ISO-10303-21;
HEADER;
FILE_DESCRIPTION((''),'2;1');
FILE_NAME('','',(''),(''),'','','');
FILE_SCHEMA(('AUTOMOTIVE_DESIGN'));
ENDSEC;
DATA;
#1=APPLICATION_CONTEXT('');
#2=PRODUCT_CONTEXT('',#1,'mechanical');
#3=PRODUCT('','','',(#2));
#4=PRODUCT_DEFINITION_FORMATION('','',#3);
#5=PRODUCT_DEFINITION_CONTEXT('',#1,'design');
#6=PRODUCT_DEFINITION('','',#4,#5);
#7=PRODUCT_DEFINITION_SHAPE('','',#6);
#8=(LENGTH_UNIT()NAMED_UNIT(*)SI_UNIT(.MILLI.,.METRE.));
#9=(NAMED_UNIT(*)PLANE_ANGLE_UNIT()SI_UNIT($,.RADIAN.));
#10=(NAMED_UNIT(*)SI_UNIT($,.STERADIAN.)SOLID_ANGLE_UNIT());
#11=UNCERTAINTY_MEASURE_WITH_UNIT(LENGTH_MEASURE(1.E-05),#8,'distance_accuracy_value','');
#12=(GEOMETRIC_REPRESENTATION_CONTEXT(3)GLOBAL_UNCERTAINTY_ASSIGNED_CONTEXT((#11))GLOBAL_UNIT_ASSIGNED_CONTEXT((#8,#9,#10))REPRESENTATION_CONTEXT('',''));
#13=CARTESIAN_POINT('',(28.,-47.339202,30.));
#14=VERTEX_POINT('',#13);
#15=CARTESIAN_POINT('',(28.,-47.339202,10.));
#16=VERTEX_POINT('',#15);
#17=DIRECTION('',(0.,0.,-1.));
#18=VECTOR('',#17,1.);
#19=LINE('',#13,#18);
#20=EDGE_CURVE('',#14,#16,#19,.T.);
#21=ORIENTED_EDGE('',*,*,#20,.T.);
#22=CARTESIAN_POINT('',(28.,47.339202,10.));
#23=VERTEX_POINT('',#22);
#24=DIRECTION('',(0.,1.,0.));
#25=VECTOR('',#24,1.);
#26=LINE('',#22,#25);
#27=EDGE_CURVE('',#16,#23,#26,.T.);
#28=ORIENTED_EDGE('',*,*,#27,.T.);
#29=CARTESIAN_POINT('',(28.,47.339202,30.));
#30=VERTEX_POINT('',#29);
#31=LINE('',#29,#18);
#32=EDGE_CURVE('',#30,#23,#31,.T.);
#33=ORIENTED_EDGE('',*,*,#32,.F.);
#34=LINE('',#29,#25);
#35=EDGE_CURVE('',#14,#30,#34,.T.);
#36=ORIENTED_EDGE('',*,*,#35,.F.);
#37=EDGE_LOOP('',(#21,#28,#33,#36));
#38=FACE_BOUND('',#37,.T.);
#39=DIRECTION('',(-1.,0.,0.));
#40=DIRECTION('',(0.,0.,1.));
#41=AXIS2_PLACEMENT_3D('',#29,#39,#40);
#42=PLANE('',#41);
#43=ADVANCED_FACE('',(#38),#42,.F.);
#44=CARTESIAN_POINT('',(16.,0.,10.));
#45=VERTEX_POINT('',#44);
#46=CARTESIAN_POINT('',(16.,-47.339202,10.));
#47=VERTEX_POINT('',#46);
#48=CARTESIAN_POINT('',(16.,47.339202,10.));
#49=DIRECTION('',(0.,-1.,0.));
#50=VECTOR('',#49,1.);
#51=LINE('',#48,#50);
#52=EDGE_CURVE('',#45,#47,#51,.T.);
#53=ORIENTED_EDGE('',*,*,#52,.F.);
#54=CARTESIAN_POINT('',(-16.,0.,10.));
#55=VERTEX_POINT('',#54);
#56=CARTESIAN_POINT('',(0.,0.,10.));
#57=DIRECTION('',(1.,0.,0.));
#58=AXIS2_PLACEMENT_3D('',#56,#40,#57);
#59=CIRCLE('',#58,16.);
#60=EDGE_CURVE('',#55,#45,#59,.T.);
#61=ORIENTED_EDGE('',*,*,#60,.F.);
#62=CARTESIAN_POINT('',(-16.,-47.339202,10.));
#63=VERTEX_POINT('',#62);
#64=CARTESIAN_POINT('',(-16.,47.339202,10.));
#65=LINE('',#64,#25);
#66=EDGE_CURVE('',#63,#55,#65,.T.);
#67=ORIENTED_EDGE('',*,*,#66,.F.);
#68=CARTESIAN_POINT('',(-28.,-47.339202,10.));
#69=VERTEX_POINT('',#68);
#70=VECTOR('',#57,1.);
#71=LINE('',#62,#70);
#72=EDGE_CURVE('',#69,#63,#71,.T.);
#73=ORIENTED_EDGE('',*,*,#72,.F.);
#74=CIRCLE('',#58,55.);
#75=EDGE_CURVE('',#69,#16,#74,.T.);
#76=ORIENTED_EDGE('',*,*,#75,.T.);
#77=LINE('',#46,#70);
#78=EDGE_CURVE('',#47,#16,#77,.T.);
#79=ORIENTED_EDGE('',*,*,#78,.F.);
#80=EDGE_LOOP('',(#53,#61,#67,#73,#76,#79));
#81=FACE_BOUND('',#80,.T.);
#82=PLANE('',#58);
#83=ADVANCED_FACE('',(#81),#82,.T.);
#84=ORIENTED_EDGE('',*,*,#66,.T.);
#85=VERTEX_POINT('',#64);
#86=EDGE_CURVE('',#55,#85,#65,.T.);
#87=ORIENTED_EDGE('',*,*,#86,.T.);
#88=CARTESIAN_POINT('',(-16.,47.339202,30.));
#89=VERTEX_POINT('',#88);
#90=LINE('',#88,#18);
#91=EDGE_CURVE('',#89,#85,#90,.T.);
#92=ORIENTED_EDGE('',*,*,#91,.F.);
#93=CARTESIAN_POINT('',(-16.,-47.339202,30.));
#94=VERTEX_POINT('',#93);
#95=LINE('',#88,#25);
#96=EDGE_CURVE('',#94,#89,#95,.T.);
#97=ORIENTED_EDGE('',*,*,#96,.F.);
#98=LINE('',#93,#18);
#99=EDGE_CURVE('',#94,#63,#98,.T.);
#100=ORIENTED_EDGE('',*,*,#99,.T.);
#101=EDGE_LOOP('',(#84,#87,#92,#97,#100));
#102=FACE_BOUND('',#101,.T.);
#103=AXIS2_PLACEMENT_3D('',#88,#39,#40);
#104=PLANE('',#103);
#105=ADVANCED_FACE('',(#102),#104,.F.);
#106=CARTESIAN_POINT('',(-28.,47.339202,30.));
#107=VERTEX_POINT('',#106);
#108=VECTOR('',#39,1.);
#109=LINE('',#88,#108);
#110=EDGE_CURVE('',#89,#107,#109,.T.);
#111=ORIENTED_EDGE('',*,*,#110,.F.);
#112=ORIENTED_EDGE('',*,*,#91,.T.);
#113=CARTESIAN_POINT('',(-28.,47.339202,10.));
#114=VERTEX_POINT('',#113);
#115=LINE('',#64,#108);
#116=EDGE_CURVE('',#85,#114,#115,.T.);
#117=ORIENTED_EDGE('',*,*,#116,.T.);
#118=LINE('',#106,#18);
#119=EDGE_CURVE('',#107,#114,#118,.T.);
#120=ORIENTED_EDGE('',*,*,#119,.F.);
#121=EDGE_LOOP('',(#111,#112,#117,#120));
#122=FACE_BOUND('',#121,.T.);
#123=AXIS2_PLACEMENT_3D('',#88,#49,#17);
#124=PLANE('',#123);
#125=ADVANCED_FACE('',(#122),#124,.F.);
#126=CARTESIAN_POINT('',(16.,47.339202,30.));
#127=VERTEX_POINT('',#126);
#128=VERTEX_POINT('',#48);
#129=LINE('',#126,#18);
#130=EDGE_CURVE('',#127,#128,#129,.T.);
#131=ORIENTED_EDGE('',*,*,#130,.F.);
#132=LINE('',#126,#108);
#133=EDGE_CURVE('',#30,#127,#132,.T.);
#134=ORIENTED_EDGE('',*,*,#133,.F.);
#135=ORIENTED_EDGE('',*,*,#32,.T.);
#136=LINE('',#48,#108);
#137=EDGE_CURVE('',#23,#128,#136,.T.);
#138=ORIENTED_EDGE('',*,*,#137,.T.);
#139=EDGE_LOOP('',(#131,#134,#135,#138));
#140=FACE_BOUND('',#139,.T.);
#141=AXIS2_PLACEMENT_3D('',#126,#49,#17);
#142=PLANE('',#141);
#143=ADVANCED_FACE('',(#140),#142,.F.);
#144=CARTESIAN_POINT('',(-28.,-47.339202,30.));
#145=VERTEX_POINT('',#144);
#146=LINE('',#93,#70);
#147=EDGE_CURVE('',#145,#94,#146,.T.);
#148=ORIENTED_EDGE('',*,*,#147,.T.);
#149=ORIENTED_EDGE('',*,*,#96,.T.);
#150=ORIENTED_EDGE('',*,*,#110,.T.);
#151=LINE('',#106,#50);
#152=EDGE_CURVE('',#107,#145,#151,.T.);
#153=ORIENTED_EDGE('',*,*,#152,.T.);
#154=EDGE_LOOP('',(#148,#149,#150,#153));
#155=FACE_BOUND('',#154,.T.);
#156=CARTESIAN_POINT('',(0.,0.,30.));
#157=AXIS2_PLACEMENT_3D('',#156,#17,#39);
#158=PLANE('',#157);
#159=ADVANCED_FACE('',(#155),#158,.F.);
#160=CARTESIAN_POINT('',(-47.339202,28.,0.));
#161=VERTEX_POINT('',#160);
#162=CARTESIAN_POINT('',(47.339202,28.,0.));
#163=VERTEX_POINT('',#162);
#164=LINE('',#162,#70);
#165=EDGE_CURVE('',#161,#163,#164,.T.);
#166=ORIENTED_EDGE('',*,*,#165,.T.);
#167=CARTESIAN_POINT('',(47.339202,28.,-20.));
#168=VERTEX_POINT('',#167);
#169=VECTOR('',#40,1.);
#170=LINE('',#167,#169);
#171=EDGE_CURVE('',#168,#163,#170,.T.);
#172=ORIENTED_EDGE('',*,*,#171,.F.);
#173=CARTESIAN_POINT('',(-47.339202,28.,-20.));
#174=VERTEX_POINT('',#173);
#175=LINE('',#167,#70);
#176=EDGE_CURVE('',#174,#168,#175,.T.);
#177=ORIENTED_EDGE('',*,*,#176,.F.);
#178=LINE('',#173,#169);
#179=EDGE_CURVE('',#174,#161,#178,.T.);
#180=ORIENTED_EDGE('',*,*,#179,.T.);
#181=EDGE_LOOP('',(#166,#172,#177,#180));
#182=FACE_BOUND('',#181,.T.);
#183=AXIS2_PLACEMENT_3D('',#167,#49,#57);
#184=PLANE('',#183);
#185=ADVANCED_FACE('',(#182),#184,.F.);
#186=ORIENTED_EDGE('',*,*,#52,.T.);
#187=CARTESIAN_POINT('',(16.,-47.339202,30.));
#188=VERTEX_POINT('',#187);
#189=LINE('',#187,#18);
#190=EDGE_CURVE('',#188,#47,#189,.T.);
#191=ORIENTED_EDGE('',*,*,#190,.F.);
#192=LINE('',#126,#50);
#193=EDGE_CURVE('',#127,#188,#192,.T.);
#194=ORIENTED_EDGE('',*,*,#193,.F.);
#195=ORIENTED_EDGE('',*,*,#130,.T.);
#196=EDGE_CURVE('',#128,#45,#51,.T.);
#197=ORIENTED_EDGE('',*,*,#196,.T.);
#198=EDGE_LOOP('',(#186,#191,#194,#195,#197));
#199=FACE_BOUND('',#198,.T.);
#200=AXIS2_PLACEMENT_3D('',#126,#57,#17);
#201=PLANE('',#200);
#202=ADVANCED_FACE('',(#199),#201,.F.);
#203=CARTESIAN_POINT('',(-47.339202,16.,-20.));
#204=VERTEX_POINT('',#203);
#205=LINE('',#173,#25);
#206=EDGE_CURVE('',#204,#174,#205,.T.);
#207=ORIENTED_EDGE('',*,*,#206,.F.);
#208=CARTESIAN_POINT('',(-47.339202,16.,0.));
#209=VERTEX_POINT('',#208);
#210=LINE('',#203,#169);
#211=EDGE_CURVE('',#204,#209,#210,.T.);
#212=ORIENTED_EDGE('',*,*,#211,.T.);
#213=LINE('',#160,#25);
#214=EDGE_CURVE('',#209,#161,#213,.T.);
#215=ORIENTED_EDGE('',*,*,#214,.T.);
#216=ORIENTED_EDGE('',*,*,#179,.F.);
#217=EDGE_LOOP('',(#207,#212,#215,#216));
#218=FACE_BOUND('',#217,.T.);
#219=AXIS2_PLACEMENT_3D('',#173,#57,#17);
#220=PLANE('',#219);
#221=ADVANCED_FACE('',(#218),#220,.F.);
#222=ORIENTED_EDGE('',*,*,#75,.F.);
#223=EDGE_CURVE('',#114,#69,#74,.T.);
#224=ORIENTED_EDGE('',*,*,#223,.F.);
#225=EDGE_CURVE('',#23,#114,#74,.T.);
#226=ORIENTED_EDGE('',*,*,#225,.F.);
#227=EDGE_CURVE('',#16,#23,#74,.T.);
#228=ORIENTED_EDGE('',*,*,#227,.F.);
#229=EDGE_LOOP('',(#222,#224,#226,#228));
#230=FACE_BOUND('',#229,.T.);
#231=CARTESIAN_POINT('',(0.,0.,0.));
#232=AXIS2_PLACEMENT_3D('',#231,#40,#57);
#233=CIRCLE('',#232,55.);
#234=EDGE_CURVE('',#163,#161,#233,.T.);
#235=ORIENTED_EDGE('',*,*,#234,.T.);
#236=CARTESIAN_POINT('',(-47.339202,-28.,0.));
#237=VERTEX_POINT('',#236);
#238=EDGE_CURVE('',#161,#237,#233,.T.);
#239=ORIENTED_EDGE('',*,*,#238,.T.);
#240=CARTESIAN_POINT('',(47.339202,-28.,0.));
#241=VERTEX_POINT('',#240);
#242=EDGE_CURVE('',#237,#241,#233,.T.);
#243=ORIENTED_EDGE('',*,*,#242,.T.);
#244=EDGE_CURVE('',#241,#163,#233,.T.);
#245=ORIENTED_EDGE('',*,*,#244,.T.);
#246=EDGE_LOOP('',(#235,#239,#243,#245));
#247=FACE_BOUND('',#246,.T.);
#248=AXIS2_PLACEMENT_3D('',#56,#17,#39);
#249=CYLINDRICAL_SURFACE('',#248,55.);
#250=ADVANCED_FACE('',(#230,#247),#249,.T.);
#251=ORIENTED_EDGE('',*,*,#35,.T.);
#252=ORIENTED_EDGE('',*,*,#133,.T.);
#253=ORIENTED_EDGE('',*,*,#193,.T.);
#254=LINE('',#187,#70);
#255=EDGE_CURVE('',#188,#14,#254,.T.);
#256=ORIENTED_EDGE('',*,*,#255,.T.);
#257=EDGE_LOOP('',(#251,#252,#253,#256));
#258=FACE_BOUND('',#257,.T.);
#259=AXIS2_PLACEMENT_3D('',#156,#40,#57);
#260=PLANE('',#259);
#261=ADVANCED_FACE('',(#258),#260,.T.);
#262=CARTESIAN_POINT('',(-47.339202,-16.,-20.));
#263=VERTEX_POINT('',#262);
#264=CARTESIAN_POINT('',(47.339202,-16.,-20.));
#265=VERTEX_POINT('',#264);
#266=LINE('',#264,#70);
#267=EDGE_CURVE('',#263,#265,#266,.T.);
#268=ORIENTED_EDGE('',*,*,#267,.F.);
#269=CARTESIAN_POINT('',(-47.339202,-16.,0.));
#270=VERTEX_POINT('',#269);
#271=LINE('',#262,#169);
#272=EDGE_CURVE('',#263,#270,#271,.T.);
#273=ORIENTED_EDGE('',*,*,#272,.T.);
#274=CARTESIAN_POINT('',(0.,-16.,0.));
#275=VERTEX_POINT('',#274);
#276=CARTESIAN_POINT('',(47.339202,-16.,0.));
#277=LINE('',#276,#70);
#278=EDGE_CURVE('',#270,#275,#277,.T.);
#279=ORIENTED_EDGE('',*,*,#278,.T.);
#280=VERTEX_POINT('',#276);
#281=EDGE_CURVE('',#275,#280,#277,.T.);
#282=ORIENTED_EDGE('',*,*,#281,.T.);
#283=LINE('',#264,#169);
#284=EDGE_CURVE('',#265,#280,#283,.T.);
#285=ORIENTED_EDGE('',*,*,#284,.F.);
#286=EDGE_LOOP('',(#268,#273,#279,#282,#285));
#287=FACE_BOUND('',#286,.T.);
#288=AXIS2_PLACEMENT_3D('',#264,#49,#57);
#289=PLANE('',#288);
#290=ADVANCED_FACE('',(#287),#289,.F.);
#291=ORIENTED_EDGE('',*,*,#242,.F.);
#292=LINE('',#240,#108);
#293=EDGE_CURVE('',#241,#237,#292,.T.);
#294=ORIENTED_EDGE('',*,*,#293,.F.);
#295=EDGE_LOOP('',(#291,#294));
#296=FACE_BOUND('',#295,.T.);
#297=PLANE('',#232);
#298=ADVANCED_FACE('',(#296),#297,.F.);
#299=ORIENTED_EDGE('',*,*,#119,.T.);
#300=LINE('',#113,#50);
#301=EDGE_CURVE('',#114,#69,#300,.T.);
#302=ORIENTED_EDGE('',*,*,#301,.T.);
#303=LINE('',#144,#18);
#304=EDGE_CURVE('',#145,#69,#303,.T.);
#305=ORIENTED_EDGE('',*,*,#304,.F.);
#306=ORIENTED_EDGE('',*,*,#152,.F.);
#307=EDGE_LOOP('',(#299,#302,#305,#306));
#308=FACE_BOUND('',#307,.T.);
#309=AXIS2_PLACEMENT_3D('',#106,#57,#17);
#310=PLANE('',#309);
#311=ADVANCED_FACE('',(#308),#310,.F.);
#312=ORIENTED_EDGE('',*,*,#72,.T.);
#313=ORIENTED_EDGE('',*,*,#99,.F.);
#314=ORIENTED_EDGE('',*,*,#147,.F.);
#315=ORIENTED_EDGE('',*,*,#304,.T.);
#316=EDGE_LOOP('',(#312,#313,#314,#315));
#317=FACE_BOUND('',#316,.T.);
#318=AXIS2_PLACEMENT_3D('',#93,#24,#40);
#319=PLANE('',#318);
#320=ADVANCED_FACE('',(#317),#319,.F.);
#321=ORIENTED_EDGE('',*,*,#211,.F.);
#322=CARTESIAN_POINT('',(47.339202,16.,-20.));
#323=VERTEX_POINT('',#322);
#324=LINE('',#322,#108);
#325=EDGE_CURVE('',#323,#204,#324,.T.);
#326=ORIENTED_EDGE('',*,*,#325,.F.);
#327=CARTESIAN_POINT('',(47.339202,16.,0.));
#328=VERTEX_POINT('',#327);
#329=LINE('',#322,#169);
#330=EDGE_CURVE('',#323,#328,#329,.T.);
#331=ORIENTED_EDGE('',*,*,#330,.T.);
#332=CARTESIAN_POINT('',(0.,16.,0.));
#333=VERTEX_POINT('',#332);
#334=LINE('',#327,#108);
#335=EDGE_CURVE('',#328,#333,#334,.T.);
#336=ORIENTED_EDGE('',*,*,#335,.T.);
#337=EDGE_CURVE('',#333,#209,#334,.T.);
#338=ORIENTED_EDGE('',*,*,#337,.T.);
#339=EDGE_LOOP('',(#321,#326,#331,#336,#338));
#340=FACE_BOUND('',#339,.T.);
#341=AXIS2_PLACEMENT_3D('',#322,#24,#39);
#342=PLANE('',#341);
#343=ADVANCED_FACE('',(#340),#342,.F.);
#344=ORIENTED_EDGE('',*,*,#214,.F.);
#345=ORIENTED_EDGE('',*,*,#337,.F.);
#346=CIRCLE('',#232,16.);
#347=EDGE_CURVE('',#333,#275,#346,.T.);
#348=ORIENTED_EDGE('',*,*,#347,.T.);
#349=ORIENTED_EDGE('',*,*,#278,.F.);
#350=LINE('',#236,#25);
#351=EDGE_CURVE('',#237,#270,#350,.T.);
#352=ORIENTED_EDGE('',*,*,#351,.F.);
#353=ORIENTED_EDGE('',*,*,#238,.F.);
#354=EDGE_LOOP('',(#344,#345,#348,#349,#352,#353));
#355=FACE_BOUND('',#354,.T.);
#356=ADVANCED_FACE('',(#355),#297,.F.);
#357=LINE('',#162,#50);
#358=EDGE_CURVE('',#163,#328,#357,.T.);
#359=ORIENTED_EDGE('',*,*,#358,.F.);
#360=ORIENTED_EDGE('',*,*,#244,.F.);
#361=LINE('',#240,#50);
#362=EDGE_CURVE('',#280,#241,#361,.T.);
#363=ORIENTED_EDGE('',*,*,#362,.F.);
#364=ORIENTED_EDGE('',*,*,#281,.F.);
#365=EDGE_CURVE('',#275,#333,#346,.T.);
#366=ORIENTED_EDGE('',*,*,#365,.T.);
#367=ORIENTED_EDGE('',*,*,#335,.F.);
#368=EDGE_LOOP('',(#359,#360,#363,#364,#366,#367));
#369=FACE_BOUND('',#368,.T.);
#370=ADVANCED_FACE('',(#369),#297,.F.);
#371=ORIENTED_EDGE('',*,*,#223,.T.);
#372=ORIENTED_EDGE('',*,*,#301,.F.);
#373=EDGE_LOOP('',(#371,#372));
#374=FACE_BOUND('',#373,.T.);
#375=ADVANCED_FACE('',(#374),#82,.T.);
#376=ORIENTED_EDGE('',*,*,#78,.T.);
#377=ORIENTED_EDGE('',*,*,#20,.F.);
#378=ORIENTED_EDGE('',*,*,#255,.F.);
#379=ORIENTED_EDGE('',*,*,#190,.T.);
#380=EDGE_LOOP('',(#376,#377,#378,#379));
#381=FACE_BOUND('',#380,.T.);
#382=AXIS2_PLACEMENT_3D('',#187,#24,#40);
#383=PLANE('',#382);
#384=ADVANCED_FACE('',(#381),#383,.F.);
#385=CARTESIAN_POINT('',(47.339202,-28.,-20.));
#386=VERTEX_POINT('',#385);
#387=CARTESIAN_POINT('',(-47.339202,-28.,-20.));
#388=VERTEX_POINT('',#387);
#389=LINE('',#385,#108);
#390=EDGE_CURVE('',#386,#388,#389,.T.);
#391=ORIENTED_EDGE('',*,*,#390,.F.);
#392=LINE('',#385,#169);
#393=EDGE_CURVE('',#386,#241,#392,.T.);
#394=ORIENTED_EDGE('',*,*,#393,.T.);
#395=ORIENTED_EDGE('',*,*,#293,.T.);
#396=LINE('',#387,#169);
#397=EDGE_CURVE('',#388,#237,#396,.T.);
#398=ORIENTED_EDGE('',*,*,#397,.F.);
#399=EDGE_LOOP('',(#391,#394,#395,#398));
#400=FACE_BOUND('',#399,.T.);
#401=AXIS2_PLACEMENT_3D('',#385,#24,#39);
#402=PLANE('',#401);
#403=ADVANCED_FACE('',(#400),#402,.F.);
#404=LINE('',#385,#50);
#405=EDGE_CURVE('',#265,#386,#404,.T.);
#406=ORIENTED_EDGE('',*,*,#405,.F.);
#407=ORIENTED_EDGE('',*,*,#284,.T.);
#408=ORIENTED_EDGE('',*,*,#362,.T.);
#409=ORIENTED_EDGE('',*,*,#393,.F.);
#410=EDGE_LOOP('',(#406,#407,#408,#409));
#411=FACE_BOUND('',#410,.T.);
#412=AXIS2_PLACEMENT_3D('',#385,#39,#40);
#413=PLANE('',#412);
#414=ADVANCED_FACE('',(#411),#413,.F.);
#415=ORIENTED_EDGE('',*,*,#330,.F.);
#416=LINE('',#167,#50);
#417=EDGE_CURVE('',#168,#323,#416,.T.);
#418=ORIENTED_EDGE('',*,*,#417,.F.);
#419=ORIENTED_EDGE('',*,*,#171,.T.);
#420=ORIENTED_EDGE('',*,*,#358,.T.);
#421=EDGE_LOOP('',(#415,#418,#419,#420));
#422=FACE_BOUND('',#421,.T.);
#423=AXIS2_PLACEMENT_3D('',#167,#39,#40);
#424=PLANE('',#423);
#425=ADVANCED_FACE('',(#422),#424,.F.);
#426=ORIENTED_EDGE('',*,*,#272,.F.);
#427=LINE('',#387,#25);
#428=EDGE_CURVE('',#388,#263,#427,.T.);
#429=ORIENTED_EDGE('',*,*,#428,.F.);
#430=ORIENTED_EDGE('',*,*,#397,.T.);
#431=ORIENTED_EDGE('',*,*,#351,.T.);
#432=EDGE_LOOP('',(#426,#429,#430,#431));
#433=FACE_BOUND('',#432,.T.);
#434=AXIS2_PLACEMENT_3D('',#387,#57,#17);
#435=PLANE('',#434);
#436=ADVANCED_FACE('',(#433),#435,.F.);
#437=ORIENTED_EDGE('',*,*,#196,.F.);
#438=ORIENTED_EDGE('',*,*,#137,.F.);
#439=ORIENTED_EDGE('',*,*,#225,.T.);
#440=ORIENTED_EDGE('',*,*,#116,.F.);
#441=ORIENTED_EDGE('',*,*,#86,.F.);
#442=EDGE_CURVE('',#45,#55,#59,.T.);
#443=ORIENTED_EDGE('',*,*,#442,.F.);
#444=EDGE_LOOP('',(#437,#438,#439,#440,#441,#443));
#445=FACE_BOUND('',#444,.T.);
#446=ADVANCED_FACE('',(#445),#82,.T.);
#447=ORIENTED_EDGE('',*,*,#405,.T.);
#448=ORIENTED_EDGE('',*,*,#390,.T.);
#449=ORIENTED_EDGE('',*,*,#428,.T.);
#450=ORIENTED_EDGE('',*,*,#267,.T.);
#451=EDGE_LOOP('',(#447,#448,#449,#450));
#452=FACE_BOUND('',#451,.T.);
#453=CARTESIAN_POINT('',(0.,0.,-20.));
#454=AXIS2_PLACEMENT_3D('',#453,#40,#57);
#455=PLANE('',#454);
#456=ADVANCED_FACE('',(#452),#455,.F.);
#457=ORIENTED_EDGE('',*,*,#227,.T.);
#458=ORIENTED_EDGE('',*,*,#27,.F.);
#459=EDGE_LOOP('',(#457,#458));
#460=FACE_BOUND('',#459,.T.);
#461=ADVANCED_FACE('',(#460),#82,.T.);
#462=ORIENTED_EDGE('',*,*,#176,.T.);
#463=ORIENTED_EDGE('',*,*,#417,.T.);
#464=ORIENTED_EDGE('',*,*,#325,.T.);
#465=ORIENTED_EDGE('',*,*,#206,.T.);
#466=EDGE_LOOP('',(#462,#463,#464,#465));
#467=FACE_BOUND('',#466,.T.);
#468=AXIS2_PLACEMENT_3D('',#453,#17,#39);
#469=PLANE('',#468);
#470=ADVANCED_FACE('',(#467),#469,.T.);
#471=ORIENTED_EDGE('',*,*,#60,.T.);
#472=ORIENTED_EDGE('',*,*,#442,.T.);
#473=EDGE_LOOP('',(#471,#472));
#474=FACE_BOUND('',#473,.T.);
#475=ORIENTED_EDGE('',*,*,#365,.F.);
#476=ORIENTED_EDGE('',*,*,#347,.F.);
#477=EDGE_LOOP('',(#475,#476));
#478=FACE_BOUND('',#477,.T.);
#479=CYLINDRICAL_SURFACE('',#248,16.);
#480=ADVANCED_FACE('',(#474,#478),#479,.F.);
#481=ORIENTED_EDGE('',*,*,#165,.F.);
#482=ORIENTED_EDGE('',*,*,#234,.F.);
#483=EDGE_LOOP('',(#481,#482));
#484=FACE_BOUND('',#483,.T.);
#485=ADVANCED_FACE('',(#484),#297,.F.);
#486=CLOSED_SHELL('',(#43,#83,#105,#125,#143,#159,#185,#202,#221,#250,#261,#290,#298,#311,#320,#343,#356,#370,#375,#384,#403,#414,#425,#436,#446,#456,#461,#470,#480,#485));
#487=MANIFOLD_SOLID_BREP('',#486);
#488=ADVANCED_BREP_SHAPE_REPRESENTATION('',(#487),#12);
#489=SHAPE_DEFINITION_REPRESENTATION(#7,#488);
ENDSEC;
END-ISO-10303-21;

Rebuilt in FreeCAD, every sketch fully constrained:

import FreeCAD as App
import Part
import Sketcher
from FreeCAD import Vector
Q = App.Units.Quantity


def add_polygon(sketch, points):
    """Adds a closed chain of lines whose ends are joined by coincident constraints."""
    first, n = sketch.GeometryCount, len(points)
    for a, b in zip(points, points[1:] + points[:1]):
        sketch.addGeometry(Part.LineSegment(App.Vector(*a, 0), App.Vector(*b, 0)), False)
    for i in range(n):
        sketch.addConstraint(Sketcher.Constraint("Coincident", first + i, 2, first + (i + 1) % n, 1))

doc = App.newDocument("Part")
body = doc.addObject("PartDesign::Body", "Body")

# Sketch on XY plane
sketch1 = body.newObject("Sketcher::SketchObject", "Sketch")
sketch1.AttachmentSupport = (doc.getObject("XY_Plane"), [""])
sketch1.MapMode = "FlatFace"
sketch1.addGeometry([
    Part.Circle(Vector(0, 0, 0), Vector(0, 0, 1), 55),
    Part.Circle(Vector(0, 0, 0), Vector(0, 0, 1), 16),
], False)
sketch1.addConstraint([
    Sketcher.Constraint("Coincident", 0, 3, -1, 1),
    Sketcher.Constraint("Coincident", 1, 3, -1, 1),
    Sketcher.Constraint("Diameter", 0, Q("110 mm")),
    Sketcher.Constraint("Diameter", 1, Q("32 mm")),
])
pad1 = body.newObject("PartDesign::Pad", "Pad")
pad1.Profile = sketch1
pad1.Length = 10

# Sketch on XY plane
sketch2 = body.newObject("Sketcher::SketchObject", "Sketch001")
sketch2.AttachmentSupport = (doc.getObject("XY_Plane"), [""])
sketch2.MapMode = "FlatFace"
sketch2.AttachmentOffset = App.Placement(Vector(0, 0, 10), App.Rotation())
add_polygon(sketch2, [(-28, 47.339202), (-28, -47.339202), (-16, -47.339202), (-16, 47.339202)])  # lines 0-3
add_polygon(sketch2, [(16, 47.339202), (16, -47.339202), (28, -47.339202), (28, 47.339202)])  # lines 4-7
sketch2.addConstraint([
    Sketcher.Constraint("Vertical", 0),
    Sketcher.Constraint("Horizontal", 1),
    Sketcher.Constraint("Vertical", 2),
    Sketcher.Constraint("Horizontal", 3),
    Sketcher.Constraint("Vertical", 4),
    Sketcher.Constraint("Horizontal", 5),
    Sketcher.Constraint("Vertical", 6),
    Sketcher.Constraint("Horizontal", 7),
    Sketcher.Constraint("Symmetric", 2, 2, 4, 2, -1, 1),
    Sketcher.Constraint("Symmetric", 0, 2, 6, 2, -1, 1),
    Sketcher.Constraint("Horizontal", 1, 2, 4, 2),
    Sketcher.Constraint("DistanceX", 1, 1, 1, 2, Q("12 mm")),
    Sketcher.Constraint("DistanceX", 0, 2, -1, 1, Q("28 mm")),
    Sketcher.Constraint("DistanceY", 0, 2, -1, 1, Q("47.339202 mm")),
])
pad2 = body.newObject("PartDesign::Pad", "Pad001")
pad2.Profile = sketch2
pad2.Length = 20

# Sketch on XY plane
sketch3 = body.newObject("Sketcher::SketchObject", "Sketch002")
sketch3.AttachmentSupport = (doc.getObject("XY_Plane"), [""])
sketch3.MapMode = "FlatFace"
add_polygon(sketch3, [(47.339202, -16), (47.339202, -28), (-47.339202, -28), (-47.339202, -16)])  # lines 0-3
add_polygon(sketch3, [(47.339202, 28), (47.339202, 16), (-47.339202, 16), (-47.339202, 28)])  # lines 4-7
sketch3.addConstraint([
    Sketcher.Constraint("Vertical", 0),
    Sketcher.Constraint("Horizontal", 1),
    Sketcher.Constraint("Vertical", 2),
    Sketcher.Constraint("Horizontal", 3),
    Sketcher.Constraint("Vertical", 4),
    Sketcher.Constraint("Horizontal", 5),
    Sketcher.Constraint("Vertical", 6),
    Sketcher.Constraint("Horizontal", 7),
    Sketcher.Constraint("Symmetric", 2, 2, 4, 2, -1, 1),
    Sketcher.Constraint("Symmetric", 0, 2, 6, 2, -1, 1),
    Sketcher.Constraint("Vertical", 3, 2, 4, 2),
    Sketcher.Constraint("DistanceY", 0, 2, 0, 1, Q("12 mm")),
    Sketcher.Constraint("DistanceY", 0, 2, -1, 1, Q("28 mm")),
    Sketcher.Constraint("DistanceX", -1, 1, 0, 2, Q("47.339202 mm")),
])
pad3 = body.newObject("PartDesign::Pad", "Pad002")
pad3.Profile = sketch3
pad3.Length = 20
pad3.Reversed = True

doc.recompute()
